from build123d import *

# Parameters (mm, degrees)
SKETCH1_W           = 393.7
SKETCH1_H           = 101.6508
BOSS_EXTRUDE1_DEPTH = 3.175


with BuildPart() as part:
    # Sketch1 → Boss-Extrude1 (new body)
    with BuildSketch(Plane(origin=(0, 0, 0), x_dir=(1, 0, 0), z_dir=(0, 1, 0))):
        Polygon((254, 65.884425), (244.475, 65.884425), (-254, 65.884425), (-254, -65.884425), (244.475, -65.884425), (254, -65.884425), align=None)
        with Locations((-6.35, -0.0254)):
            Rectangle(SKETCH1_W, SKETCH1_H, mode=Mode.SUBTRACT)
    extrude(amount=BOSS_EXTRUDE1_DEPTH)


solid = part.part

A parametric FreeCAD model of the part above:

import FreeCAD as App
import Part
import Sketcher
from FreeCAD import Vector
Q = App.Units.Quantity

doc = App.newDocument("Part")
body = doc.addObject("PartDesign::Body", "Body")

# Sketch on XZ plane
sketch1 = doc.addObject("Sketcher::SketchObject", "Sketch")
body.addObject(sketch1)
sketch1.AttachmentSupport = (doc.XZ_Plane, [""])
sketch1.MapMode = "FlatFace"
sketch1.addGeometry(Part.LineSegment(Vector(254, -65.884425, 0), Vector(-254, -65.884425, 0)), False)
sketch1.addGeometry(Part.LineSegment(Vector(-254, -65.884425, 0), Vector(-254, 65.884425, 0)), False)
sketch1.addGeometry(Part.LineSegment(Vector(-254, 65.884425, 0), Vector(254, 65.884425, 0)), False)
sketch1.addGeometry(Part.LineSegment(Vector(254, 65.884425, 0), Vector(254, -65.884425, 0)), False)
sketch1.addGeometry(Part.LineSegment(Vector(190.5, 50.8508, 0), Vector(-203.2, 50.8508, 0)), False)
sketch1.addGeometry(Part.LineSegment(Vector(-203.2, 50.8508, 0), Vector(-203.2, -50.8, 0)), False)
sketch1.addGeometry(Part.LineSegment(Vector(-203.2, -50.8, 0), Vector(190.5, -50.8, 0)), False)
sketch1.addGeometry(Part.LineSegment(Vector(190.5, -50.8, 0), Vector(190.5, 50.8508, 0)), False)
sketch1.addConstraint(Sketcher.Constraint("Coincident", 0, 2, 1, 1))
sketch1.addConstraint(Sketcher.Constraint("Coincident", 1, 2, 2, 1))
sketch1.addConstraint(Sketcher.Constraint("Coincident", 2, 2, 3, 1))
sketch1.addConstraint(Sketcher.Constraint("Coincident", 3, 2, 0, 1))
sketch1.addConstraint(Sketcher.Constraint("Coincident", 4, 2, 5, 1))
sketch1.addConstraint(Sketcher.Constraint("Coincident", 5, 2, 6, 1))
sketch1.addConstraint(Sketcher.Constraint("Coincident", 6, 2, 7, 1))
sketch1.addConstraint(Sketcher.Constraint("Coincident", 7, 2, 4, 1))
sketch1.addConstraint(Sketcher.Constraint("Horizontal", 0))
sketch1.addConstraint(Sketcher.Constraint("Vertical", 1))
sketch1.addConstraint(Sketcher.Constraint("Horizontal", 2))
sketch1.addConstraint(Sketcher.Constraint("Vertical", 3))
sketch1.addConstraint(Sketcher.Constraint("Horizontal", 4))
sketch1.addConstraint(Sketcher.Constraint("Vertical", 5))
sketch1.addConstraint(Sketcher.Constraint("Horizontal", 6))
sketch1.addConstraint(Sketcher.Constraint("Vertical", 7))
sketch1.addConstraint(Sketcher.Constraint("Symmetric", 0, 2, 2, 2, -1, 1))
sketch1.addConstraint(Sketcher.Constraint("DistanceX", 0, 2, 0, 1, Q("20 in")))
sketch1.addConstraint(Sketcher.Constraint("DistanceX", 4, 2, 4, 1, Q("15.5 in")))
sketch1.addConstraint(Sketcher.Constraint("DistanceX", 4, 2, -1, 1, Q("8 in")))
sketch1.addConstraint(Sketcher.Constraint("DistanceY", 5, 2, -1, 1, Q("2 in")))
sketch1.addConstraint(Sketcher.Constraint("DistanceY", 5, 2, 5, 1, Q("4.002 in")))
sketch1.addConstraint(Sketcher.Constraint("DistanceY", 1, 1, 1, 2, Q("131.76885 mm")))
pad1 = doc.addObject("PartDesign::Pad", "Pad")
body.addObject(pad1)
pad1.Profile = sketch1
pad1.Length = Q("0.125 in")
pad1.Reversed = True

doc.recompute()
